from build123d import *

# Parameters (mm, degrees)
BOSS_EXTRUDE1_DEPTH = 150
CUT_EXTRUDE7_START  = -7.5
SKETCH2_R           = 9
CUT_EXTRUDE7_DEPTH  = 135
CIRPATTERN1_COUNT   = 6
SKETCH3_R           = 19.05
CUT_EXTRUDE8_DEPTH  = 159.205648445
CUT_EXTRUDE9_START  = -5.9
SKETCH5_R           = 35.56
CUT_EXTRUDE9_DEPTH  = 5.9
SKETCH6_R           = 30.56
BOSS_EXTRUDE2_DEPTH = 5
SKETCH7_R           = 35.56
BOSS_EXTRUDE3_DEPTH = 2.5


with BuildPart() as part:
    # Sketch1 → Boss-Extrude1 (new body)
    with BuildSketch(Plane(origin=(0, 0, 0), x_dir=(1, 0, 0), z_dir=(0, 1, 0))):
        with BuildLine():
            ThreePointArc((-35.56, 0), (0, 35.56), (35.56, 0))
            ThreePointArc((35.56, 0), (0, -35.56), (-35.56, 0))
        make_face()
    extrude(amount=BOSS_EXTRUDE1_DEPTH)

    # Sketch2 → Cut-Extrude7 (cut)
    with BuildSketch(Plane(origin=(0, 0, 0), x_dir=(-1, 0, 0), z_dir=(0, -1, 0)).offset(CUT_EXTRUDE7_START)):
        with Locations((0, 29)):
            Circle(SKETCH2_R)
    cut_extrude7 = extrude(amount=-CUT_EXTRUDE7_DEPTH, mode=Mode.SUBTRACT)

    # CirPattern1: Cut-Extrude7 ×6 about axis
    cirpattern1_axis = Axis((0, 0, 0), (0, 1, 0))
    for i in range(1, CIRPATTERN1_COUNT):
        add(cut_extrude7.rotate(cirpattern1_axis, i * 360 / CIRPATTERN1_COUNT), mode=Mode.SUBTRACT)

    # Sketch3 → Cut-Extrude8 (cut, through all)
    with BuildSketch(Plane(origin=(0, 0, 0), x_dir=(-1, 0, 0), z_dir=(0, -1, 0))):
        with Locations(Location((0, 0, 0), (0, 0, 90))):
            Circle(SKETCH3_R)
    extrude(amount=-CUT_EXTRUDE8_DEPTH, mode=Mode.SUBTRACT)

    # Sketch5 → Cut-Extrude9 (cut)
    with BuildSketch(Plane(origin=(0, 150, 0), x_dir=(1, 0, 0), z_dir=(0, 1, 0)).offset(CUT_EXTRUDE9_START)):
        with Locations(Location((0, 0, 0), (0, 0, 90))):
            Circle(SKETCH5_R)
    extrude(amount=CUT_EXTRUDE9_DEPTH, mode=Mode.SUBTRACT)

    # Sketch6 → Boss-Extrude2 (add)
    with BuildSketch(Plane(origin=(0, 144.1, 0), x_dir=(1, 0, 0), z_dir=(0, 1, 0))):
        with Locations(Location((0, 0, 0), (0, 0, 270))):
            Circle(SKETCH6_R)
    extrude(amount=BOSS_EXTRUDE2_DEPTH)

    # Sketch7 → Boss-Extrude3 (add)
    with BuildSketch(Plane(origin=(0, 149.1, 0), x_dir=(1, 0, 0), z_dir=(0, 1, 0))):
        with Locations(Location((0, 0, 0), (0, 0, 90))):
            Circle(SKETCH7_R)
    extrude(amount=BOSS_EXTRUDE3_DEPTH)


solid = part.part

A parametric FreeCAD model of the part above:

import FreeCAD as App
import Part
import Sketcher
from FreeCAD import Vector

doc = App.newDocument("Part")
body = doc.addObject("PartDesign::Body", "Body")

# Sketch on XZ plane
sketch1 = doc.addObject("Sketcher::SketchObject", "Sketch")
body.addObject(sketch1)
sketch1.AttachmentSupport = (doc.XZ_Plane, [""])
sketch1.MapMode = "FlatFace"
sketch1.addGeometry(Part.Circle(Vector(0, 0, 0), Vector(0, 0, 1), 35.56), False)
sketch1.addConstraint([
    Sketcher.Constraint("Coincident", 0, 3, -1, 1),
    Sketcher.Constraint("Diameter", 0, 71.12),
])
pad1 = doc.addObject("PartDesign::Pad", "Pad")
body.addObject(pad1)
pad1.Profile = sketch1
pad1.Length = 150
pad1.Reversed = True

# Sketch on XZ plane
sketch2 = doc.addObject("Sketcher::SketchObject", "Sketch001")
body.addObject(sketch2)
sketch2.AttachmentSupport = (doc.XZ_Plane, [""])
sketch2.MapMode = "FlatFace"
sketch2.AttachmentOffset = App.Placement(Vector(0, 0, -7.5), App.Rotation())
sketch2.addGeometry(Part.Circle(Vector(0, -29, 0), Vector(0, 0, 1), 9), False)
sketch2.addConstraint([
    Sketcher.Constraint("PointOnObject", 0, 3, -2),
    Sketcher.Constraint("Diameter", 0, 18.0),
    Sketcher.Constraint("DistanceY", 0, 3, -1, 1, 29.0),
])
pocket1 = doc.addObject("PartDesign::Pocket", "Pocket")
body.addObject(pocket1)
pocket1.Profile = sketch2
pocket1.Length = 135
doc.recompute()

polarpattern = doc.addObject("PartDesign::PolarPattern", "PolarPattern")
body.addObject(polarpattern)
polarpattern.Originals = [pocket1]
polarpattern.Axis = (doc.Y_Axis, [""])
polarpattern.Angle = 360
polarpattern.Occurrences = 6
body.Tip = polarpattern

# Sketch on XZ plane
sketch3 = doc.addObject("Sketcher::SketchObject", "Sketch002")
body.addObject(sketch3)
sketch3.AttachmentSupport = (doc.XZ_Plane, [""])
sketch3.MapMode = "FlatFace"
sketch3.addGeometry(Part.Circle(Vector(0, 0, 0), Vector(0, 0, 1), 19.05), False)
sketch3.addConstraint([
    Sketcher.Constraint("Coincident", 0, 3, -1, 1),
    Sketcher.Constraint("Diameter", 0, 38.1),
])
pocket2 = doc.addObject("PartDesign::Pocket", "Pocket001")
body.addObject(pocket2)
pocket2.Profile = sketch3
pocket2.Type = "ThroughAll"

# Sketch on XZ plane
sketch4 = doc.addObject("Sketcher::SketchObject", "Sketch003")
body.addObject(sketch4)
sketch4.AttachmentSupport = (doc.XZ_Plane, [""])
sketch4.MapMode = "FlatFace"
sketch4.AttachmentOffset = App.Placement(Vector(0, 0, -144.1), App.Rotation())
sketch4.addGeometry(Part.Circle(Vector(0, 0, 0), Vector(0, 0, 1), 35.56), False)
sketch4.addConstraint([
    Sketcher.Constraint("Coincident", 0, 3, -1, 1),
    Sketcher.Constraint("Diameter", 0, 71.12),
])
pocket3 = doc.addObject("PartDesign::Pocket", "Pocket002")
body.addObject(pocket3)
pocket3.Profile = sketch4
pocket3.Length = 5.9

# Sketch on XZ plane
sketch5 = doc.addObject("Sketcher::SketchObject", "Sketch004")
body.addObject(sketch5)
sketch5.AttachmentSupport = (doc.XZ_Plane, [""])
sketch5.MapMode = "FlatFace"
sketch5.AttachmentOffset = App.Placement(Vector(0, 0, -144.1), App.Rotation())
sketch5.addGeometry(Part.Circle(Vector(0, 0, 0), Vector(0, 0, 1), 30.56), False)
sketch5.addConstraint([
    Sketcher.Constraint("Coincident", 0, 3, -1, 1),
    Sketcher.Constraint("Diameter", 0, 61.12),
])
pad2 = doc.addObject("PartDesign::Pad", "Pad001")
body.addObject(pad2)
pad2.Profile = sketch5
pad2.Length = 5
pad2.Reversed = True

# Sketch on XZ plane
sketch6 = doc.addObject("Sketcher::SketchObject", "Sketch005")
body.addObject(sketch6)
sketch6.AttachmentSupport = (doc.XZ_Plane, [""])
sketch6.MapMode = "FlatFace"
sketch6.AttachmentOffset = App.Placement(Vector(0, 0, -149.1), App.Rotation())
sketch6.addGeometry(Part.Circle(Vector(0, 0, 0), Vector(0, 0, 1), 35.56), False)
sketch6.addConstraint([
    Sketcher.Constraint("Coincident", 0, 3, -1, 1),
    Sketcher.Constraint("Diameter", 0, 71.12),
])
pad3 = doc.addObject("PartDesign::Pad", "Pad002")
body.addObject(pad3)
pad3.Profile = sketch6
pad3.Length = 2.5
pad3.Reversed = True

doc.recompute()
